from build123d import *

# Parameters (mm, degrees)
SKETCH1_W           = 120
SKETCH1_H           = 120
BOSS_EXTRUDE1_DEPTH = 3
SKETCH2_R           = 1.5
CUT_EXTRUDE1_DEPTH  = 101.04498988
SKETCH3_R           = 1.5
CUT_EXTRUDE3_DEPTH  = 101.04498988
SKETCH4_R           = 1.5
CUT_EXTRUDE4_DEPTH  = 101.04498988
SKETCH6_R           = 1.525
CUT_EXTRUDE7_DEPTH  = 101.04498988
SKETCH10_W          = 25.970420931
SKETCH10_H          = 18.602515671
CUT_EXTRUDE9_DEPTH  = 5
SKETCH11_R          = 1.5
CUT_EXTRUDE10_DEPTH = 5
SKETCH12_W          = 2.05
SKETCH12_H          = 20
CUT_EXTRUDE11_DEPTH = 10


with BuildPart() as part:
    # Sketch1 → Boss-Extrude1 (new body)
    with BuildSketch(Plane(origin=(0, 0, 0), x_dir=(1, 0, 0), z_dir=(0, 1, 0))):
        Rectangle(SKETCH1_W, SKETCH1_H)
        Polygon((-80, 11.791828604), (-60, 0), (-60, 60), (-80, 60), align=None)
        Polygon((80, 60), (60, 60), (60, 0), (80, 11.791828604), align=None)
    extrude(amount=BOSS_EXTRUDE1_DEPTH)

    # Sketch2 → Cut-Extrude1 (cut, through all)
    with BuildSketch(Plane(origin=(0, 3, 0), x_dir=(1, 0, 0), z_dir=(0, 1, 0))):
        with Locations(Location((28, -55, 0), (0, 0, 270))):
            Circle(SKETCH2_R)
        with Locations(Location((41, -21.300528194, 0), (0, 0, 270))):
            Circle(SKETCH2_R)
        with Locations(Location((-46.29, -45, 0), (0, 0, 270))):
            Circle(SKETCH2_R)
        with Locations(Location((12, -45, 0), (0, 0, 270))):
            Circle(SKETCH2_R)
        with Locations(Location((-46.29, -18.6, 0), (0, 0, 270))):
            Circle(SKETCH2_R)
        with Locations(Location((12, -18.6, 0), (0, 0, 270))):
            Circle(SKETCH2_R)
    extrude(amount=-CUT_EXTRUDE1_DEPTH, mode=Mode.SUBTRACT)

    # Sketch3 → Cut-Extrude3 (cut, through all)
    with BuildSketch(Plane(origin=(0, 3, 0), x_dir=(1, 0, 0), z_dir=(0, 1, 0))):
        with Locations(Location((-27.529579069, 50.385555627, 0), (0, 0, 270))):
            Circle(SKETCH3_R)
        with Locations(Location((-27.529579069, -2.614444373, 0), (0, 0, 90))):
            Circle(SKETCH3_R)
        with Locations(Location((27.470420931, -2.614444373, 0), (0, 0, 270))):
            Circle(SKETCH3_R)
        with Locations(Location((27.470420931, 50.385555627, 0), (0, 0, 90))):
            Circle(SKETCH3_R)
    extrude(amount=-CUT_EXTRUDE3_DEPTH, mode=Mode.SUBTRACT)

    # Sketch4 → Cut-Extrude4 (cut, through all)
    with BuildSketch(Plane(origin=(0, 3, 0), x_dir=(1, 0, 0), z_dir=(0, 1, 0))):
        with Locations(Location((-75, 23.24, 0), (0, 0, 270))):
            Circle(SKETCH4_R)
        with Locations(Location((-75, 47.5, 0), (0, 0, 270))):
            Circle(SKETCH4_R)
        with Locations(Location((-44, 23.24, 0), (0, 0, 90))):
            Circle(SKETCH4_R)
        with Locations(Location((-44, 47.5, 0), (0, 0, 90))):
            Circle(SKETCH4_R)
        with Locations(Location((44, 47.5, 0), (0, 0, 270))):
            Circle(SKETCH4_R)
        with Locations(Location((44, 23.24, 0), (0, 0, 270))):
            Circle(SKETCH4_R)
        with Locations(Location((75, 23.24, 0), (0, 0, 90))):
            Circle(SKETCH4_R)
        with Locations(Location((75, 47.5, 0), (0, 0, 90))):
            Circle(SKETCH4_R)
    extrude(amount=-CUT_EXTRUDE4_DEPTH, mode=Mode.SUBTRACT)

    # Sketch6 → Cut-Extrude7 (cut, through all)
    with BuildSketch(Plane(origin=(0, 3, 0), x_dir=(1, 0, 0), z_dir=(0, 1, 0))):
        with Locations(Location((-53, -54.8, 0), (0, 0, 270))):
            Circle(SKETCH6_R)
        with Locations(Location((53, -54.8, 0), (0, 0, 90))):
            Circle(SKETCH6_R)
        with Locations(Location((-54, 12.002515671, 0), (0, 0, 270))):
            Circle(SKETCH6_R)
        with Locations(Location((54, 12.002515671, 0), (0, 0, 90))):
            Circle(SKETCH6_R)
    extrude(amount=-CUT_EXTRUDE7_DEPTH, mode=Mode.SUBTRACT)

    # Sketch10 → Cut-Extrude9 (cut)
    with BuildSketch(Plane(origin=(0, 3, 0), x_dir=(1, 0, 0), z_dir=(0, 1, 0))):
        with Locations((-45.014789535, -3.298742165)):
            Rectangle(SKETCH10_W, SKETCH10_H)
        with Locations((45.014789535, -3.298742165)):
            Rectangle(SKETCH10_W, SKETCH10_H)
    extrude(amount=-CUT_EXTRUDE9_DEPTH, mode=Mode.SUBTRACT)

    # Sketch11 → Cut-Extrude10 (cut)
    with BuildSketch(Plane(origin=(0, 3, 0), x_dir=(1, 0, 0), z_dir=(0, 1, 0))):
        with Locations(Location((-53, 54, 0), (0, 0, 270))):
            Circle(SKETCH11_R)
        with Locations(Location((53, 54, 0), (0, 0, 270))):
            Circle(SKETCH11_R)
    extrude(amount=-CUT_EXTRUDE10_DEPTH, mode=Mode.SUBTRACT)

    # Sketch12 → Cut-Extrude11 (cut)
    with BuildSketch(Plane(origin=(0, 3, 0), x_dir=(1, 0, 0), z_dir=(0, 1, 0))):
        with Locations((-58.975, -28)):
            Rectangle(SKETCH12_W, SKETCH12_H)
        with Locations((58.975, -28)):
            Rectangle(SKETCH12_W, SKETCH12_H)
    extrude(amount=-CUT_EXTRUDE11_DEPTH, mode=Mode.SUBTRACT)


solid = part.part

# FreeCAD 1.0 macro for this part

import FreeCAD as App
import Part
import Sketcher
from FreeCAD import Vector
Q = App.Units.Quantity


def add_polygon(sketch, points):
    """Adds a closed chain of lines whose ends are joined by coincident constraints."""
    first, n = sketch.GeometryCount, len(points)
    for a, b in zip(points, points[1:] + points[:1]):
        sketch.addGeometry(Part.LineSegment(App.Vector(*a, 0), App.Vector(*b, 0)), False)
    for i in range(n):
        sketch.addConstraint(Sketcher.Constraint("Coincident", first + i, 2, first + (i + 1) % n, 1))

doc = App.newDocument("Part")
params = doc.addObject("Spreadsheet::Sheet", "Params")
for row, (alias, value) in enumerate([
    ("sketch1_width", "120 mm"),
    ("sketch1_width2", "160 mm"),
    ("sketch1_height", "60 mm"),
    ("pad1_length", "3 mm"),
    ("sketch2_diameter", "3 mm"),
    ("sketch3_diameter", "3 mm"),
    ("sketch4_diameter", "3 mm"),
    ("sketch5_diameter", "3.05 mm"),
    ("pocket5_length", "5 mm"),
    ("sketch7_diameter", "3 mm"),
    ("pocket6_length", "5 mm"),
    ("sketch8_height", "20 mm"),
    ("sketch8_width", "2.05 mm"),
    ("pocket7_length", "10 mm"),
], start=1):
    params.set(f"A{row}", alias)
    params.set(f"B{row}", "=" + value)
    params.setAlias(f"B{row}", alias)

body = doc.addObject("PartDesign::Body", "Body")

# Sketch on XZ plane
sketch1 = body.newObject("Sketcher::SketchObject", "Sketch")
sketch1.AttachmentSupport = (doc.getObject("XZ_Plane"), [""])
sketch1.MapMode = "FlatFace"
add_polygon(sketch1, [(-60, 0), (-60, 60), (60, 60), (60, 0), (80, -12), (80, -60), (-80, -60), (-80, -12)])  # lines 0-7
sketch1.addConstraint(Sketcher.Constraint("Vertical", 0))
sketch1.addConstraint(Sketcher.Constraint("Horizontal", 1))
sketch1.addConstraint(Sketcher.Constraint("Vertical", 2))
sketch1.addConstraint(Sketcher.Constraint("Vertical", 4))
sketch1.addConstraint(Sketcher.Constraint("Horizontal", 5))
sketch1.addConstraint(Sketcher.Constraint("Vertical", 6))
sketch1.addConstraint(Sketcher.Constraint("Symmetric", 2, 2, 7, 2, -1, 1))
sketch1.addConstraint(Sketcher.Constraint("Symmetric", 3, 2, 6, 2, -2))
sketch1.addConstraint(Sketcher.Constraint("PointOnObject", 2, 2, -1))
sketch1.addConstraint(Sketcher.Constraint("DistanceX", 1, 1, 1, 2, Q("120 mm")))
sketch1.addConstraint(Sketcher.Constraint("DistanceX", 5, 2, 5, 1, Q("160 mm")))
sketch1.addConstraint(Sketcher.Constraint("DistanceY", 0, 1, 0, 2, Q("60 mm")))
sketch1.addConstraint(Sketcher.Constraint("DistanceY", 4, 2, -1, 1, Q("60 mm")))
sketch1.addConstraint(Sketcher.Constraint("DistanceY", 4, 2, 4, 1, Q("48.208171 mm")))
sketch1.setExpression("Constraints[17]", "Params.sketch1_width")
sketch1.setExpression("Constraints[18]", "Params.sketch1_width2")
sketch1.setExpression("Constraints[19]", "Params.sketch1_height")
pad1 = body.newObject("PartDesign::Pad", "Pad")
pad1.Profile = sketch1
pad1.setExpression("Length", "Params.pad1_length")
pad1.Reversed = True

# Sketch on XZ plane
sketch2 = body.newObject("Sketcher::SketchObject", "Sketch001")
sketch2.AttachmentSupport = (doc.getObject("XZ_Plane"), [""])
sketch2.MapMode = "FlatFace"
sketch2.AttachmentOffset = App.Placement(Vector(0, 0, -3), App.Rotation())
sketch2.addGeometry(Part.Circle(Vector(28, 55, 0), Vector(0, 0, 1), 1.5), False)
sketch2.addGeometry(Part.Circle(Vector(41, 21.3, 0), Vector(0, 0, 1), 1.5), False)
sketch2.addGeometry(Part.Circle(Vector(-46.3, 45, 0), Vector(0, 0, 1), 1.5), False)
sketch2.addGeometry(Part.Circle(Vector(12, 45, 0), Vector(0, 0, 1), 1.5), False)
sketch2.addGeometry(Part.Circle(Vector(-46.3, 18.6, 0), Vector(0, 0, 1), 1.5), False)
sketch2.addGeometry(Part.Circle(Vector(12, 18.6, 0), Vector(0, 0, 1), 1.5), False)
sketch2.addConstraint(Sketcher.Constraint("Equal", 0, 1))
sketch2.addConstraint(Sketcher.Constraint("Equal", 1, 2))
sketch2.addConstraint(Sketcher.Constraint("Equal", 2, 3))
sketch2.addConstraint(Sketcher.Constraint("Equal", 3, 4))
sketch2.addConstraint(Sketcher.Constraint("Equal", 4, 5))
sketch2.addConstraint(Sketcher.Constraint("Horizontal", 2, 3, 3, 3))
sketch2.addConstraint(Sketcher.Constraint("Horizontal", 4, 3, 5, 3))
sketch2.addConstraint(Sketcher.Constraint("Vertical", 2, 3, 4, 3))
sketch2.addConstraint(Sketcher.Constraint("Vertical", 3, 3, 5, 3))
sketch2.addConstraint(Sketcher.Constraint("Diameter", 0, Q("3 mm")))
sketch2.addConstraint(Sketcher.Constraint("DistanceX", -1, 1, 0, 3, Q("28 mm")))
sketch2.addConstraint(Sketcher.Constraint("DistanceY", -1, 1, 0, 3, Q("55 mm")))
sketch2.addConstraint(Sketcher.Constraint("DistanceX", -1, 1, 1, 3, Q("41 mm")))
sketch2.addConstraint(Sketcher.Constraint("DistanceY", -1, 1, 2, 3, Q("45 mm")))
sketch2.addConstraint(Sketcher.Constraint("DistanceX", -1, 1, 3, 3, Q("12 mm")))
sketch2.addConstraint(Sketcher.Constraint("DistanceY", -1, 1, 4, 3, Q("18.6 mm")))
sketch2.addConstraint(Sketcher.Constraint("DistanceX", 2, 3, -1, 1, Q("46.29 mm")))
sketch2.addConstraint(Sketcher.Constraint("DistanceY", -1, 1, 1, 3, Q("21.300528 mm")))
sketch2.setExpression("Constraints[9]", "Params.sketch2_diameter")
pocket1 = body.newObject("PartDesign::Pocket", "Pocket")
pocket1.Profile = sketch2
pocket1.Type = "ThroughAll"
pocket1.Reversed = True

# Sketch on XZ plane
sketch3 = body.newObject("Sketcher::SketchObject", "Sketch002")
sketch3.AttachmentSupport = (doc.getObject("XZ_Plane"), [""])
sketch3.MapMode = "FlatFace"
sketch3.AttachmentOffset = App.Placement(Vector(0, 0, -3), App.Rotation())
sketch3.addGeometry(Part.Circle(Vector(-27.5, -50.4, 0), Vector(0, 0, 1), 1.5), False)
sketch3.addGeometry(Part.Circle(Vector(-27.5, 2.6, 0), Vector(0, 0, 1), 1.5), False)
sketch3.addGeometry(Part.Circle(Vector(27.5, 2.6, 0), Vector(0, 0, 1), 1.5), False)
sketch3.addGeometry(Part.Circle(Vector(27.5, -50.4, 0), Vector(0, 0, 1), 1.5), False)
sketch3.addConstraint(Sketcher.Constraint("Equal", 0, 1))
sketch3.addConstraint(Sketcher.Constraint("Equal", 1, 2))
sketch3.addConstraint(Sketcher.Constraint("Equal", 2, 3))
sketch3.addConstraint(Sketcher.Constraint("Horizontal", 1, 3, 2, 3))
sketch3.addConstraint(Sketcher.Constraint("Horizontal", 0, 3, 3, 3))
sketch3.addConstraint(Sketcher.Constraint("Vertical", 0, 3, 1, 3))
sketch3.addConstraint(Sketcher.Constraint("Vertical", 2, 3, 3, 3))
sketch3.addConstraint(Sketcher.Constraint("Diameter", 0, Q("3 mm")))
sketch3.addConstraint(Sketcher.Constraint("DistanceY", 0, 3, 1, 3, Q("53 mm")))
sketch3.addConstraint(Sketcher.Constraint("DistanceX", 1, 3, 2, 3, Q("55 mm")))
sketch3.addConstraint(Sketcher.Constraint("DistanceX", 0, 3, -1, 1, Q("27.529579 mm")))
sketch3.addConstraint(Sketcher.Constraint("DistanceY", 0, 3, -1, 1, Q("50.385556 mm")))
sketch3.setExpression("Constraints[7]", "Params.sketch3_diameter")
pocket2 = body.newObject("PartDesign::Pocket", "Pocket001")
pocket2.Profile = sketch3
pocket2.Type = "ThroughAll"
pocket2.Reversed = True

# Sketch on XZ plane
sketch4 = body.newObject("Sketcher::SketchObject", "Sketch003")
sketch4.AttachmentSupport = (doc.getObject("XZ_Plane"), [""])
sketch4.MapMode = "FlatFace"
sketch4.AttachmentOffset = App.Placement(Vector(0, 0, -3), App.Rotation())
sketch4.addGeometry(Part.Circle(Vector(-75, -23.2, 0), Vector(0, 0, 1), 1.5), False)
sketch4.addGeometry(Part.Circle(Vector(-75, -47.5, 0), Vector(0, 0, 1), 1.5), False)
sketch4.addGeometry(Part.Circle(Vector(-44, -23.2, 0), Vector(0, 0, 1), 1.5), False)
sketch4.addGeometry(Part.Circle(Vector(-44, -47.5, 0), Vector(0, 0, 1), 1.5), False)
sketch4.addGeometry(Part.Circle(Vector(44, -47.5, 0), Vector(0, 0, 1), 1.5), False)
sketch4.addGeometry(Part.Circle(Vector(44, -23.2, 0), Vector(0, 0, 1), 1.5), False)
sketch4.addGeometry(Part.Circle(Vector(75, -23.2, 0), Vector(0, 0, 1), 1.5), False)
sketch4.addGeometry(Part.Circle(Vector(75, -47.5, 0), Vector(0, 0, 1), 1.5), False)
sketch4.addConstraint(Sketcher.Constraint("Equal", 0, 1))
sketch4.addConstraint(Sketcher.Constraint("Equal", 1, 2))
sketch4.addConstraint(Sketcher.Constraint("Equal", 2, 3))
sketch4.addConstraint(Sketcher.Constraint("Equal", 3, 4))
sketch4.addConstraint(Sketcher.Constraint("Equal", 4, 5))
sketch4.addConstraint(Sketcher.Constraint("Equal", 5, 6))
sketch4.addConstraint(Sketcher.Constraint("Equal", 6, 7))
sketch4.addConstraint(Sketcher.Constraint("Symmetric", 3, 3, 4, 3, -2))
sketch4.addConstraint(Sketcher.Constraint("Symmetric", 2, 3, 5, 3, -2))
sketch4.addConstraint(Sketcher.Constraint("Symmetric", 0, 3, 6, 3, -2))
sketch4.addConstraint(Sketcher.Constraint("Symmetric", 1, 3, 7, 3, -2))
sketch4.addConstraint(Sketcher.Constraint("Horizontal", 0, 3, 2, 3))
sketch4.addConstraint(Sketcher.Constraint("Horizontal", 1, 3, 3, 3))
sketch4.addConstraint(Sketcher.Constraint("Vertical", 0, 3, 1, 3))
sketch4.addConstraint(Sketcher.Constraint("Vertical", 2, 3, 3, 3))
sketch4.addConstraint(Sketcher.Constraint("Diameter", 0, Q("3 mm")))
sketch4.addConstraint(Sketcher.Constraint("DistanceX", 0, 3, -1, 1, Q("75 mm")))
sketch4.addConstraint(Sketcher.Constraint("DistanceX", 2, 3, -1, 1, Q("44 mm")))
sketch4.addConstraint(Sketcher.Constraint("DistanceY", 1, 3, -1, 1, Q("47.5 mm")))
sketch4.addConstraint(Sketcher.Constraint("DistanceY", 0, 3, -1, 1, Q("23.24 mm")))
sketch4.setExpression("Constraints[15]", "Params.sketch4_diameter")
pocket3 = body.newObject("PartDesign::Pocket", "Pocket002")
pocket3.Profile = sketch4
pocket3.Type = "ThroughAll"
pocket3.Reversed = True

# Sketch on XZ plane
sketch5 = body.newObject("Sketcher::SketchObject", "Sketch004")
sketch5.AttachmentSupport = (doc.getObject("XZ_Plane"), [""])
sketch5.MapMode = "FlatFace"
sketch5.AttachmentOffset = App.Placement(Vector(0, 0, -3), App.Rotation())
sketch5.addGeometry(Part.Circle(Vector(-53, 54.8, 0), Vector(0, 0, 1), 1.5), False)
sketch5.addGeometry(Part.Circle(Vector(53, 54.8, 0), Vector(0, 0, 1), 1.5), False)
sketch5.addGeometry(Part.Circle(Vector(-54, -12, 0), Vector(0, 0, 1), 1.5), False)
sketch5.addGeometry(Part.Circle(Vector(54, -12, 0), Vector(0, 0, 1), 1.5), False)
sketch5.addConstraint(Sketcher.Constraint("Equal", 0, 1))
sketch5.addConstraint(Sketcher.Constraint("Equal", 1, 2))
sketch5.addConstraint(Sketcher.Constraint("Equal", 2, 3))
sketch5.addConstraint(Sketcher.Constraint("Symmetric", 0, 3, 1, 3, -2))
sketch5.addConstraint(Sketcher.Constraint("Symmetric", 2, 3, 3, 3, -2))
sketch5.addConstraint(Sketcher.Constraint("Diameter", 0, Q("3.05 mm")))
sketch5.addConstraint(Sketcher.Constraint("DistanceX", 0, 3, -1, 1, Q("53 mm")))
sketch5.addConstraint(Sketcher.Constraint("DistanceX", 2, 3, -1, 1, Q("54 mm")))
sketch5.addConstraint(Sketcher.Constraint("DistanceY", -1, 1, 0, 3, Q("54.8 mm")))
sketch5.addConstraint(Sketcher.Constraint("DistanceY", 2, 3, -1, 1, Q("12.002516 mm")))
sketch5.setExpression("Constraints[5]", "Params.sketch5_diameter")
pocket4 = body.newObject("PartDesign::Pocket", "Pocket003")
pocket4.Profile = sketch5
pocket4.Type = "ThroughAll"
pocket4.Reversed = True

# Sketch on XZ plane
sketch6 = body.newObject("Sketcher::SketchObject", "Sketch005")
sketch6.AttachmentSupport = (doc.getObject("XZ_Plane"), [""])
sketch6.MapMode = "FlatFace"
sketch6.AttachmentOffset = App.Placement(Vector(0, 0, -3), App.Rotation())
add_polygon(sketch6, [(-58, -6), (-58, 13), (-32, 13), (-32, -6)])  # lines 0-3
add_polygon(sketch6, [(32, -6), (32, 13), (58, 13), (58, -6)])  # lines 4-7
sketch6.addConstraint(Sketcher.Constraint("Vertical", 0))
sketch6.addConstraint(Sketcher.Constraint("Horizontal", 1))
sketch6.addConstraint(Sketcher.Constraint("Vertical", 2))
sketch6.addConstraint(Sketcher.Constraint("Horizontal", 3))
sketch6.addConstraint(Sketcher.Constraint("Vertical", 4))
sketch6.addConstraint(Sketcher.Constraint("Horizontal", 5))
sketch6.addConstraint(Sketcher.Constraint("Vertical", 6))
sketch6.addConstraint(Sketcher.Constraint("Horizontal", 7))
sketch6.addConstraint(Sketcher.Constraint("Symmetric", 1, 2, 4, 2, -2))
sketch6.addConstraint(Sketcher.Constraint("Symmetric", 3, 2, 6, 2, -2))
sketch6.addConstraint(Sketcher.Constraint("DistanceX", 0, 2, -1, 1, Q("58 mm")))
sketch6.addConstraint(Sketcher.Constraint("DistanceY", -1, 1, 0, 2, Q("12.6 mm")))
sketch6.addConstraint(Sketcher.Constraint("DistanceX", 1, 1, 1, 2, Q("25.970421 mm")))
sketch6.addConstraint(Sketcher.Constraint("DistanceY", 0, 1, 0, 2, Q("18.602516 mm")))
pocket5 = body.newObject("PartDesign::Pocket", "Pocket004")
pocket5.Profile = sketch6
pocket5.setExpression("Length", "Params.pocket5_length")
pocket5.Reversed = True

# Sketch on XZ plane
sketch7 = body.newObject("Sketcher::SketchObject", "Sketch006")
sketch7.AttachmentSupport = (doc.getObject("XZ_Plane"), [""])
sketch7.MapMode = "FlatFace"
sketch7.AttachmentOffset = App.Placement(Vector(0, 0, -3), App.Rotation())
sketch7.addGeometry(Part.Circle(Vector(-53, -54, 0), Vector(0, 0, 1), 1.5), False)
sketch7.addGeometry(Part.Circle(Vector(53, -54, 0), Vector(0, 0, 1), 1.5), False)
sketch7.addConstraint(Sketcher.Constraint("Equal", 0, 1))
sketch7.addConstraint(Sketcher.Constraint("Symmetric", 0, 3, 1, 3, -2))
sketch7.addConstraint(Sketcher.Constraint("Diameter", 0, Q("3 mm")))
sketch7.addConstraint(Sketcher.Constraint("DistanceX", 0, 3, -1, 1, Q("53 mm")))
sketch7.addConstraint(Sketcher.Constraint("DistanceY", 0, 3, -1, 1, Q("54 mm")))
sketch7.setExpression("Constraints[2]", "Params.sketch7_diameter")
pocket6 = body.newObject("PartDesign::Pocket", "Pocket005")
pocket6.Profile = sketch7
pocket6.setExpression("Length", "Params.pocket6_length")
pocket6.Reversed = True

# Sketch on XZ plane
sketch8 = body.newObject("Sketcher::SketchObject", "Sketch007")
sketch8.AttachmentSupport = (doc.getObject("XZ_Plane"), [""])
sketch8.MapMode = "FlatFace"
sketch8.AttachmentOffset = App.Placement(Vector(0, 0, -3), App.Rotation())
add_polygon(sketch8, [(-60, 18), (-60, 38), (-58, 38), (-58, 18)])  # lines 0-3
add_polygon(sketch8, [(58, 18), (58, 38), (60, 38), (60, 18)])  # lines 4-7
sketch8.addConstraint(Sketcher.Constraint("Vertical", 0))
sketch8.addConstraint(Sketcher.Constraint("Horizontal", 1))
sketch8.addConstraint(Sketcher.Constraint("Vertical", 2))
sketch8.addConstraint(Sketcher.Constraint("Horizontal", 3))
sketch8.addConstraint(Sketcher.Constraint("Vertical", 4))
sketch8.addConstraint(Sketcher.Constraint("Horizontal", 5))
sketch8.addConstraint(Sketcher.Constraint("Vertical", 6))
sketch8.addConstraint(Sketcher.Constraint("Horizontal", 7))
sketch8.addConstraint(Sketcher.Constraint("Symmetric", 1, 2, 4, 2, -2))
sketch8.addConstraint(Sketcher.Constraint("Symmetric", 3, 2, 6, 2, -2))
sketch8.addConstraint(Sketcher.Constraint("DistanceY", 0, 1, 0, 2, Q("20 mm")))
sketch8.addConstraint(Sketcher.Constraint("DistanceX", 0, 2, -1, 1, Q("60 mm")))
sketch8.addConstraint(Sketcher.Constraint("DistanceY", -1, 1, 0, 2, Q("38 mm")))
sketch8.addConstraint(Sketcher.Constraint("DistanceX", 1, 1, 1, 2, Q("2.05 mm")))
sketch8.setExpression("Constraints[18]", "Params.sketch8_height")
sketch8.setExpression("Constraints[21]", "Params.sketch8_width")
pocket7 = body.newObject("PartDesign::Pocket", "Pocket006")
pocket7.Profile = sketch8
pocket7.setExpression("Length", "Params.pocket7_length")
pocket7.Reversed = True

doc.recompute()
